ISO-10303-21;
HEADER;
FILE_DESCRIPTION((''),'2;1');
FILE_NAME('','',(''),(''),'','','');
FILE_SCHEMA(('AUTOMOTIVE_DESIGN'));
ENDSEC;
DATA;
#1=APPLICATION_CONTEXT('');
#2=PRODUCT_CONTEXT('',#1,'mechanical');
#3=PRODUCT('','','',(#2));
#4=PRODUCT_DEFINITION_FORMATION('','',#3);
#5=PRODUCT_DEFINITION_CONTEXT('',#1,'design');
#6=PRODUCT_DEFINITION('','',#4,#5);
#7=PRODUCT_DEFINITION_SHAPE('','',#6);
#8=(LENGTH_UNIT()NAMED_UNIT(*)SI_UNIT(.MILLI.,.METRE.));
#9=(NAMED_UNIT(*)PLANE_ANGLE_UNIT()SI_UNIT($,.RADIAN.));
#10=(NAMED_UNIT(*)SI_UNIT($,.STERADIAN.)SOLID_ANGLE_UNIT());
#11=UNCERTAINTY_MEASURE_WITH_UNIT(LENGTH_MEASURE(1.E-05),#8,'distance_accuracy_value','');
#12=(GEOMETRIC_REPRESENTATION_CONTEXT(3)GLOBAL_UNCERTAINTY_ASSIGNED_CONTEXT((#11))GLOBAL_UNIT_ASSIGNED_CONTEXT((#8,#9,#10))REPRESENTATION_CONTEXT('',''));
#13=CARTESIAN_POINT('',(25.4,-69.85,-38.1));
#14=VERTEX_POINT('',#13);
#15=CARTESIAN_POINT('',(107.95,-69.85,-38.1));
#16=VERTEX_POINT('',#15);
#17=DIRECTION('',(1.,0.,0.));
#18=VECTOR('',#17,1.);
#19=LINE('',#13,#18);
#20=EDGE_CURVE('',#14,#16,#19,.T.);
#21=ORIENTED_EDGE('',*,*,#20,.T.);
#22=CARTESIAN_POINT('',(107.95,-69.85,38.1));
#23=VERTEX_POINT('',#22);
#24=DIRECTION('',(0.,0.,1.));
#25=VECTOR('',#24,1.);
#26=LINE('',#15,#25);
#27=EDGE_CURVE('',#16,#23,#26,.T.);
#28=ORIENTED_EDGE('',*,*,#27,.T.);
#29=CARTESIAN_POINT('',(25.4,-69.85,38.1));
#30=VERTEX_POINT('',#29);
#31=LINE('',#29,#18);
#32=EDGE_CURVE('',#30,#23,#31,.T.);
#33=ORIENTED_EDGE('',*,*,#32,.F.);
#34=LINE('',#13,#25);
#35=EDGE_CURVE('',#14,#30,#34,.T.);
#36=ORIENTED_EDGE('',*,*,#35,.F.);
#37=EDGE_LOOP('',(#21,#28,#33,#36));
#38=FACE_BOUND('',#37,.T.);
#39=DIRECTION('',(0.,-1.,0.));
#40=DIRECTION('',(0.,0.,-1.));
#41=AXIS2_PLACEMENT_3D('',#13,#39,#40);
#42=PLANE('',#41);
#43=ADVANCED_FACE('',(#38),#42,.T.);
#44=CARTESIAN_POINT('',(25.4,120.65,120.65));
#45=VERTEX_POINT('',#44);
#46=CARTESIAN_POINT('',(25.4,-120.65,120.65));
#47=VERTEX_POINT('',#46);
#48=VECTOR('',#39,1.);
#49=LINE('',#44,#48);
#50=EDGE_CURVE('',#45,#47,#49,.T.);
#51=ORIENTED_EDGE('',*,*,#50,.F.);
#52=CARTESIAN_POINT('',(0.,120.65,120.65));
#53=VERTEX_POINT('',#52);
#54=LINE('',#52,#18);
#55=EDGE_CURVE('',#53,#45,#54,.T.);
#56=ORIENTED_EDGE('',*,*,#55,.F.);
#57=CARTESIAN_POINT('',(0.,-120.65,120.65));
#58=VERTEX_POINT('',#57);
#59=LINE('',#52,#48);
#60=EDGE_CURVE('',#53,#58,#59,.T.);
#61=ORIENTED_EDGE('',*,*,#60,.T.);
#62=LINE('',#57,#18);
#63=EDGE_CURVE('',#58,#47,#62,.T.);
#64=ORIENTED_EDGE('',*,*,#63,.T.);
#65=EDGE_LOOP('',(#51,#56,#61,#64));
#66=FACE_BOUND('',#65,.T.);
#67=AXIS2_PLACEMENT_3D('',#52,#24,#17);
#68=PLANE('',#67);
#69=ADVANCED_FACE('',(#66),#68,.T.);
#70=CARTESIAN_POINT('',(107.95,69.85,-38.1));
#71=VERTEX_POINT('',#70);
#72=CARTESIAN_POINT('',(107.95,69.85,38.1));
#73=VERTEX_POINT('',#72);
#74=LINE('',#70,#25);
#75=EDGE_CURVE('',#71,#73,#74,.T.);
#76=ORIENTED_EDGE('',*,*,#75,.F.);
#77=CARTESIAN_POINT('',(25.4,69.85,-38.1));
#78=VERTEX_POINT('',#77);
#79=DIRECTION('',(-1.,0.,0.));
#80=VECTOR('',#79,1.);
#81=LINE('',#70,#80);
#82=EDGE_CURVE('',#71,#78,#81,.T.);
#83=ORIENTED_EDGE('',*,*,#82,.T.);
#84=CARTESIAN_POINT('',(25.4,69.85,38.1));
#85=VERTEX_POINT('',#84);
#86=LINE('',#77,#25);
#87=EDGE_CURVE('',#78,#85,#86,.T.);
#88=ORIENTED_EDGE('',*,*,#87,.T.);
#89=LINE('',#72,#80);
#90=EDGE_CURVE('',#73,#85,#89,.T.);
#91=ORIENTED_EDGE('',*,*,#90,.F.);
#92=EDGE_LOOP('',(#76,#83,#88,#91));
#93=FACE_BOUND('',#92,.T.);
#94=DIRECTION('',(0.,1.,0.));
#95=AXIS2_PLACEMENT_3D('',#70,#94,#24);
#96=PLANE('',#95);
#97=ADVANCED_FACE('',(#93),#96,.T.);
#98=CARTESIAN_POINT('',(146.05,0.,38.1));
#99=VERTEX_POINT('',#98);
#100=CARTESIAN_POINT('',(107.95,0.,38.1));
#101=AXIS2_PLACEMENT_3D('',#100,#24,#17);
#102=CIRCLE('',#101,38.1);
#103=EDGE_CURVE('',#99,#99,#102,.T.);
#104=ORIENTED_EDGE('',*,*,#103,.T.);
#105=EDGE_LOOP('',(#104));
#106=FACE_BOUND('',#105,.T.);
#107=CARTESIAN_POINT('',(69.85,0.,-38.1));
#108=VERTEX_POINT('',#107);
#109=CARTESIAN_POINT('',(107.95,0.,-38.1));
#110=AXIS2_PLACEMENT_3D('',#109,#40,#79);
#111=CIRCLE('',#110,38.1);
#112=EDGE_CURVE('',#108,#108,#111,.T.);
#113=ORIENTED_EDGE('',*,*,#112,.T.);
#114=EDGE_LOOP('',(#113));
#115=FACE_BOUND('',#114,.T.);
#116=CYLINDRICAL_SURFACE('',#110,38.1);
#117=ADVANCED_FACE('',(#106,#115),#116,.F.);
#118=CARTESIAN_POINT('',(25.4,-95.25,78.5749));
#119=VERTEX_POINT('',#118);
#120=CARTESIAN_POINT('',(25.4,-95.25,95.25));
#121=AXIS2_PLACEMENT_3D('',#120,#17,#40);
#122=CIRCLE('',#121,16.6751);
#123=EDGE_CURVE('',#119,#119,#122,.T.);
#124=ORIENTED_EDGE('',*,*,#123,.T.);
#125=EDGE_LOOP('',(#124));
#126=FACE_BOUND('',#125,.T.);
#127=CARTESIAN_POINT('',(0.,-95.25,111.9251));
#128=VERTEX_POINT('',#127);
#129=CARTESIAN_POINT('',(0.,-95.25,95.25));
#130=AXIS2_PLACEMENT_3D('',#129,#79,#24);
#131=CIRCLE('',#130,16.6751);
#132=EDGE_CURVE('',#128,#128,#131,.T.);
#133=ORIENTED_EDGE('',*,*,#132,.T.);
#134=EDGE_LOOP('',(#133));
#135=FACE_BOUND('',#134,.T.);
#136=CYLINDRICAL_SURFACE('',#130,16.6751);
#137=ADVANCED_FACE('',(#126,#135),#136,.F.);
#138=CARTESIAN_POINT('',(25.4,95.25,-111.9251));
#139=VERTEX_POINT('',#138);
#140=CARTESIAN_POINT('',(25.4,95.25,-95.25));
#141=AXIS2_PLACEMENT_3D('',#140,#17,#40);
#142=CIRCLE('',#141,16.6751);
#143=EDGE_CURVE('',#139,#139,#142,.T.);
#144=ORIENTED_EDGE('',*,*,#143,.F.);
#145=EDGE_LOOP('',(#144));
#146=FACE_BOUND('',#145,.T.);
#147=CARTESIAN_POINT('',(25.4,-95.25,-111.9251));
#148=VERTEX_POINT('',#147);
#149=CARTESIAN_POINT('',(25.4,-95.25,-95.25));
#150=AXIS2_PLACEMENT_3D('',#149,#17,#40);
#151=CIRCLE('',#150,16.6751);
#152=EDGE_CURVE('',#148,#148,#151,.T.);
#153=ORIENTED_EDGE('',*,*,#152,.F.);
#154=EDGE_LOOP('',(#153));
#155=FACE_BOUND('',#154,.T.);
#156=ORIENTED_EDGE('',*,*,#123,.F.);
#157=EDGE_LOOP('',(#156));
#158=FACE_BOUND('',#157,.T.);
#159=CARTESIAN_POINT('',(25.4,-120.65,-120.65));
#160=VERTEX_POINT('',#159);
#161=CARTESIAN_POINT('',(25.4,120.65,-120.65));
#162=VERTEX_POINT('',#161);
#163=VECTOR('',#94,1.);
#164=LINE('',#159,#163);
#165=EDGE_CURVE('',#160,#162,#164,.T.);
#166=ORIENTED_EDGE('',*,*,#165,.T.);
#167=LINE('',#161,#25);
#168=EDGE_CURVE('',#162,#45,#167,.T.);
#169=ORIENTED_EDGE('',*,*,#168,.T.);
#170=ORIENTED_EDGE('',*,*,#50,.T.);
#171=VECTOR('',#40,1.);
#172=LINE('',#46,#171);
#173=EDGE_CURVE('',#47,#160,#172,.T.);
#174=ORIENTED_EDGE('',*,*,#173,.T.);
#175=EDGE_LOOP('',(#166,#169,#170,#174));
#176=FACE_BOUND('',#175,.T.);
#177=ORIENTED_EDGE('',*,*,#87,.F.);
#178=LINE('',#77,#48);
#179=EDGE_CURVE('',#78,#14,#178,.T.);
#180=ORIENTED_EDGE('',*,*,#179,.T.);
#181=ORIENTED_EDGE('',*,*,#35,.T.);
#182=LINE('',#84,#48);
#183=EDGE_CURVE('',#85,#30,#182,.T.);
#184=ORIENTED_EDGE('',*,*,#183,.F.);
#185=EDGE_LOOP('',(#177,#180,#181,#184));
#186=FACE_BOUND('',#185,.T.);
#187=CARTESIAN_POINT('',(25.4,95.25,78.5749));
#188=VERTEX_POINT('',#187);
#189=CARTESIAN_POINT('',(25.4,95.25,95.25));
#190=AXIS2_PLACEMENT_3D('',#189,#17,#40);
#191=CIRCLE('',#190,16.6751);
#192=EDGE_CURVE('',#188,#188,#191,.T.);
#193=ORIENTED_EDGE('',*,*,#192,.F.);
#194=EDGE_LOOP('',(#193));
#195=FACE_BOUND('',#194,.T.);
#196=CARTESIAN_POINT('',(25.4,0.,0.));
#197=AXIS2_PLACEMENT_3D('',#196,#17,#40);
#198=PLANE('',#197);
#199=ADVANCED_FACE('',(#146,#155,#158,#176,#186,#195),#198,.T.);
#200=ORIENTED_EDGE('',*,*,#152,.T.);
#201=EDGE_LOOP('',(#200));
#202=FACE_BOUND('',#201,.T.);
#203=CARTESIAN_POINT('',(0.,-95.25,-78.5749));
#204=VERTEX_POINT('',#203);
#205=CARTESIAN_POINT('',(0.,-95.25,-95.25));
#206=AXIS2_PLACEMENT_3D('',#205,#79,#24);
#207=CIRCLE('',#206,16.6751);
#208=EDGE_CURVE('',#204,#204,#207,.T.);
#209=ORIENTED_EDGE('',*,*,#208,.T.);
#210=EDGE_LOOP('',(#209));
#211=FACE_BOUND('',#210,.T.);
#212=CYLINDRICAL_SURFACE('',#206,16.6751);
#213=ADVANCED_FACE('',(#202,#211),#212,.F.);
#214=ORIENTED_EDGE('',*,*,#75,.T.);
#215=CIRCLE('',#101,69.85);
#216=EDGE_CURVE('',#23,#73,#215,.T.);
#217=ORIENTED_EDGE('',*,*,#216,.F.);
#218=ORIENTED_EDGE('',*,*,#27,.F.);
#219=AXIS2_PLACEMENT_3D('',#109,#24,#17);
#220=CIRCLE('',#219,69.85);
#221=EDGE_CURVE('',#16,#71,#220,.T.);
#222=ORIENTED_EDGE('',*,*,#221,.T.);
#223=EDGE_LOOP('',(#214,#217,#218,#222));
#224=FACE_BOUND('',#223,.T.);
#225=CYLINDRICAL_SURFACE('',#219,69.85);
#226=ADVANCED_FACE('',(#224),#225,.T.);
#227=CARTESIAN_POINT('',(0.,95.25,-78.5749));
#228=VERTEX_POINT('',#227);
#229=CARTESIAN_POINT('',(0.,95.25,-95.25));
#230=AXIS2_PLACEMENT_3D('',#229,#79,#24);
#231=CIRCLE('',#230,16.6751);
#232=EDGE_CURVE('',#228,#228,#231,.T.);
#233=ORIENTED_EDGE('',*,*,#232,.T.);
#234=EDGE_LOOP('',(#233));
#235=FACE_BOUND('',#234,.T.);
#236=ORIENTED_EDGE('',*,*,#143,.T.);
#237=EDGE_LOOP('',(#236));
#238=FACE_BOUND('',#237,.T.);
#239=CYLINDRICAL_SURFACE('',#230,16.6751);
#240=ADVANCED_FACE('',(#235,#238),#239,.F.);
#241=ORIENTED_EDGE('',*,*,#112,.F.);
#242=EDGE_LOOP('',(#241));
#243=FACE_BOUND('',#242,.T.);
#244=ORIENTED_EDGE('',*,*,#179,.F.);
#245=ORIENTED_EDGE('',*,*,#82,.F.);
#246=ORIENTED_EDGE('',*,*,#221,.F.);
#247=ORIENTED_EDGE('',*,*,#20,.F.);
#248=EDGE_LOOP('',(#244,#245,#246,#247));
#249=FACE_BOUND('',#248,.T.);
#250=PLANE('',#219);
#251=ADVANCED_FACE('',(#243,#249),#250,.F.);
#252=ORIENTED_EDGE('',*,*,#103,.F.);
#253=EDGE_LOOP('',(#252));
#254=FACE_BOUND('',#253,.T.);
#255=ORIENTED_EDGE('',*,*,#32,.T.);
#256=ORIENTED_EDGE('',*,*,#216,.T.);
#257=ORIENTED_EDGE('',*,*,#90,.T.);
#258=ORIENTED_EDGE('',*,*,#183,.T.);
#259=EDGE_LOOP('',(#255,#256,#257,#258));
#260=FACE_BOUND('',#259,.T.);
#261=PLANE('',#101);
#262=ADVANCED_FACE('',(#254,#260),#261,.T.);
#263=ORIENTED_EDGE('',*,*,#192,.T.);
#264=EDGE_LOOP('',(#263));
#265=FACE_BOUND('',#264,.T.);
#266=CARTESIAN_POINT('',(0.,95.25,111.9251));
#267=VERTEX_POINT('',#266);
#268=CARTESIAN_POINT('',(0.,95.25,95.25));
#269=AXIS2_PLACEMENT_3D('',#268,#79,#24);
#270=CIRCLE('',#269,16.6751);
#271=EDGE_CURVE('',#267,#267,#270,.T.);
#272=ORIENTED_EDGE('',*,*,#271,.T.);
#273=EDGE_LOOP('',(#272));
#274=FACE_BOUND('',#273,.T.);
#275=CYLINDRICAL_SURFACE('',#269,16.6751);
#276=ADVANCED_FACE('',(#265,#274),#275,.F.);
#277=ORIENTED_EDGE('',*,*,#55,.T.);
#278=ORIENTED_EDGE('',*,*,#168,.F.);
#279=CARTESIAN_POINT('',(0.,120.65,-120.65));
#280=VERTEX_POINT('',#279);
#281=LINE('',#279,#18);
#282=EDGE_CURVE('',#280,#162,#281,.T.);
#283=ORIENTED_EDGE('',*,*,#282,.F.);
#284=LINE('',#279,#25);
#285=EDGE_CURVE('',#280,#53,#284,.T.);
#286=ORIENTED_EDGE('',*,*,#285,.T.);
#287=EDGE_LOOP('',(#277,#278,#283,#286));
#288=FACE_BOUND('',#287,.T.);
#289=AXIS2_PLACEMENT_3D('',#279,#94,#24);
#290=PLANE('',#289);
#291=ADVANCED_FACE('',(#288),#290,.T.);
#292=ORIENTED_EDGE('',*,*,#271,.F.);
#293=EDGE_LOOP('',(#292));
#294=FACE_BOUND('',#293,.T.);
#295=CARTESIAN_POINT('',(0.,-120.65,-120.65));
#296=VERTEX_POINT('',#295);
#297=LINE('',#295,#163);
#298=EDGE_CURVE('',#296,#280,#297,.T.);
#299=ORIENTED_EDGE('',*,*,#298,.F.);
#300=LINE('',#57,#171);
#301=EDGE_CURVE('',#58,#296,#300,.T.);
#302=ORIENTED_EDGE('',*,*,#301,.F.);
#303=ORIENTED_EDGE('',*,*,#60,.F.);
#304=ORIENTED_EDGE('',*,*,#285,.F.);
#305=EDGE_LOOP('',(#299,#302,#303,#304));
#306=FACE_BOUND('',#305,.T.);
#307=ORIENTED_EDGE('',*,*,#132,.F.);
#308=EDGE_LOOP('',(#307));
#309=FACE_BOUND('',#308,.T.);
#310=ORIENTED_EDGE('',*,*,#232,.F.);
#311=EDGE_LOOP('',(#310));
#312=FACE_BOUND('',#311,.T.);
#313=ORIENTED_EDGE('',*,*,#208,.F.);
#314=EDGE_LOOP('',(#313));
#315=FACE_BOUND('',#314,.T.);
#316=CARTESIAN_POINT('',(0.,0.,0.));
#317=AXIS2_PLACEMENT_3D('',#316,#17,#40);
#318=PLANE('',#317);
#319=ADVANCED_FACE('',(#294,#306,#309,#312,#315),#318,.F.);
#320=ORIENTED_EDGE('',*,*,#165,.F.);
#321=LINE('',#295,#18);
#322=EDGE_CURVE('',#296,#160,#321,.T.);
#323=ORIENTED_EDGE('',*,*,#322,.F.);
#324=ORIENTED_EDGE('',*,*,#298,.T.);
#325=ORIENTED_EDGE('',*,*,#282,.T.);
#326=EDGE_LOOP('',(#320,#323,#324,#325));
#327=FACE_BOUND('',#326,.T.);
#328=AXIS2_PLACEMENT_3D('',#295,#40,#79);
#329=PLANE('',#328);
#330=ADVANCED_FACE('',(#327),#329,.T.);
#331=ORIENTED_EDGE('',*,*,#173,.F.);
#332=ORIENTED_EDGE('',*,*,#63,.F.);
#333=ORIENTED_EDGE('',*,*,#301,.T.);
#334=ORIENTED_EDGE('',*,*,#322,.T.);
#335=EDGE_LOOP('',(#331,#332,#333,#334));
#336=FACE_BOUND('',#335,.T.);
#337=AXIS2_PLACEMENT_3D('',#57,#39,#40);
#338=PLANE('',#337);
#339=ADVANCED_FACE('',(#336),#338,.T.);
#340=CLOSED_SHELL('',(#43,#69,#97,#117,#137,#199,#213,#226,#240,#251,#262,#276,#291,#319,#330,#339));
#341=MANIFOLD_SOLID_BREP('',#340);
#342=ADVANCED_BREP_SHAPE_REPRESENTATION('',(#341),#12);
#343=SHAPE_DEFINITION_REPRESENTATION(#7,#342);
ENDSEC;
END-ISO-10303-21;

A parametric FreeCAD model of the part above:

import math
import FreeCAD as App
import Part
import Sketcher

V = App.Vector
Q = App.Units.Quantity

doc = App.newDocument("Part")
body = doc.addObject("PartDesign::Body", "Body")

sketch1 = body.newObject("Sketcher::SketchObject", "Sketch")
sketch1.AttachmentSupport = (doc.getObject("YZ_Plane"), [""])
sketch1.MapMode = "FlatFace"
sketch1.AttachmentOffset = App.Placement(V(0, 0, 1 * 25.4), App.Rotation())
sketch1.addGeometry(Part.LineSegment(V(121, 121, 0), V(-121, 121, 0)), False)
sketch1.addGeometry(Part.LineSegment(V(-121, 121, 0), V(-121, -121, 0)), False)
sketch1.addGeometry(Part.LineSegment(V(-121, -121, 0), V(121, -121, 0)), False)
sketch1.addGeometry(Part.LineSegment(V(121, -121, 0), V(121, 121, 0)), False)
sketch1.addConstraint(Sketcher.Constraint("Coincident", 0, 2, 1, 1))
sketch1.addConstraint(Sketcher.Constraint("Coincident", 1, 2, 2, 1))
sketch1.addConstraint(Sketcher.Constraint("Coincident", 2, 2, 3, 1))
sketch1.addConstraint(Sketcher.Constraint("Coincident", 3, 2, 0, 1))
sketch1.addConstraint(Sketcher.Constraint("Horizontal", 0))
sketch1.addConstraint(Sketcher.Constraint("Vertical", 1))
sketch1.addConstraint(Sketcher.Constraint("Horizontal", 2))
sketch1.addConstraint(Sketcher.Constraint("Vertical", 3))
sketch1.addConstraint(Sketcher.Constraint("Symmetric", 0, 2, 2, 2, -1, 1))
sketch1.addConstraint(Sketcher.Constraint("Equal", 2, 1))
sketch1.addConstraint(Sketcher.Constraint("DistanceX", 0, 2, 0, 1, Q("9.5 in")))
pad1 = body.newObject("PartDesign::Pad", "Pad")
pad1.Profile = sketch1
pad1.Length = Q("1 in")
pad1.Reversed = True

sketch2 = body.newObject("Sketcher::SketchObject", "Sketch001")
sketch2.AttachmentSupport = (doc.getObject("XY_Plane"), [""])
sketch2.MapMode = "FlatFace"
sketch2.AttachmentOffset = App.Placement(V(0, 0, 1.5 * 25.4), App.Rotation())
sketch2.addGeometry(Part.LineSegment(V(25, 70, 0), V(25, -70, 0)), False)
sketch2.addGeometry(Part.LineSegment(V(25, -70, 0), V(108, -70, 0)), False)
sketch2.addGeometry(Part.ArcOfCircle(Part.Circle(V(108, 0, 0), V(0, 0, 1), 70), math.radians(-90), math.radians(90)), False)
sketch2.addGeometry(Part.LineSegment(V(108, 70, 0), V(25, 70, 0)), False)
sketch2.addConstraint(Sketcher.Constraint("Coincident", 0, 2, 1, 1))
sketch2.addConstraint(Sketcher.Constraint("Tangent", 1, 2, 2, 1))
sketch2.addConstraint(Sketcher.Constraint("Tangent", 2, 2, 3, 1))
sketch2.addConstraint(Sketcher.Constraint("Coincident", 3, 2, 0, 1))
sketch2.addConstraint(Sketcher.Constraint("Vertical", 0))
sketch2.addConstraint(Sketcher.Constraint("Horizontal", 1))
sketch2.addConstraint(Sketcher.Constraint("Horizontal", 3))
sketch2.addConstraint(Sketcher.Constraint("PointOnObject", 2, 3, -1))
sketch2.addConstraint(Sketcher.Constraint("Radius", 2, Q("2.75 in")))
sketch2.addConstraint(Sketcher.Constraint("DistanceX", -1, 1, 0, 2, Q("1 in")))
sketch2.addConstraint(Sketcher.Constraint("DistanceX", 1, 1, 1, 2, Q("3.25 in")))
pad2 = body.newObject("PartDesign::Pad", "Pad001")
pad2.Profile = sketch2
pad2.Length = Q("3 in")
pad2.Reversed = True

sketch3 = body.newObject("Sketcher::SketchObject", "Sketch002")
sketch3.AttachmentSupport = (doc.getObject("XY_Plane"), [""])
sketch3.MapMode = "FlatFace"
sketch3.AttachmentOffset = App.Placement(V(0, 0, -1.5 * 25.4), App.Rotation())
sketch3.addGeometry(Part.Circle(V(108, 0, 0), V(0, 0, 1), 38), False)
sketch3.addConstraint(Sketcher.Constraint("PointOnObject", 0, 3, -1))
sketch3.addConstraint(Sketcher.Constraint("Diameter", 0, Q("3 in")))
sketch3.addConstraint(Sketcher.Constraint("DistanceX", -1, 1, 0, 3, Q("4.25 in")))
doc.recompute()
hole = body.newObject("PartDesign::Hole", "Hole")
hole.Profile = sketch3
hole.ThreadType = "None"
hole.Diameter = Q("3 in")
hole.DepthType = "Dimension"
hole.Depth = Q("6.25 in")
hole.DrillPoint = "Flat"
hole.Reversed = True

sketch4 = body.newObject("Sketcher::SketchObject", "Sketch003")
sketch4.AttachmentSupport = (doc.getObject("YZ_Plane"), [""])
sketch4.MapMode = "FlatFace"
sketch4.addGeometry(Part.Circle(V(-95, -95, 0), V(0, 0, 1), 17), False)
sketch4.addGeometry(Part.Circle(V(95, -95, 0), V(0, 0, 1), 17), False)
sketch4.addGeometry(Part.Circle(V(-95, 95, 0), V(0, 0, 1), 17), False)
sketch4.addGeometry(Part.Circle(V(95, 95, 0), V(0, 0, 1), 17), False)
sketch4.addConstraint(Sketcher.Constraint("Equal", 0, 1))
sketch4.addConstraint(Sketcher.Constraint("Equal", 1, 2))
sketch4.addConstraint(Sketcher.Constraint("Equal", 2, 3))
sketch4.addConstraint(Sketcher.Constraint("Symmetric", 1, 3, 2, 3, -1, 1))
sketch4.addConstraint(Sketcher.Constraint("Symmetric", 0, 3, 3, 3, -1, 1))
sketch4.addConstraint(Sketcher.Constraint("Symmetric", 0, 3, 1, 3, -2))
sketch4.addConstraint(Sketcher.Constraint("Diameter", 0, Q("1.313 in")))
sketch4.addConstraint(Sketcher.Constraint("DistanceX", 0, 3, 1, 3, Q("7.5 in")))
sketch4.addConstraint(Sketcher.Constraint("DistanceY", 0, 3, 2, 3, Q("7.5 in")))
doc.recompute()
hole2 = body.newObject("PartDesign::Hole", "Hole001")
hole2.Profile = sketch4
hole2.ThreadType = "None"
hole2.Diameter = Q("1.313 in")
hole2.DepthType = "Dimension"
hole2.Depth = Q("7 in")
hole2.DrillPoint = "Flat"
hole2.Reversed = True

doc.recompute()
